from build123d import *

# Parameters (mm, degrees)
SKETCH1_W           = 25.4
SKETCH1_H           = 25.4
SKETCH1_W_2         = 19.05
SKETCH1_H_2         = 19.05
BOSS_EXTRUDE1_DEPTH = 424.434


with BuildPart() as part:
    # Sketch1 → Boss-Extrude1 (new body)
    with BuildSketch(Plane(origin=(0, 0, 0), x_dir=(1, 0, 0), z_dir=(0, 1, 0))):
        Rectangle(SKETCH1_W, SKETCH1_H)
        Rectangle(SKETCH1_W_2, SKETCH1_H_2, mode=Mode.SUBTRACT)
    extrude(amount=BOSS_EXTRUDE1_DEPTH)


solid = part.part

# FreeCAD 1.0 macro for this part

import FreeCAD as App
import Part
import Sketcher
Q = App.Units.Quantity


def add_polygon(sketch, points):
    """Adds a closed chain of lines whose ends are joined by coincident constraints."""
    first, n = sketch.GeometryCount, len(points)
    for a, b in zip(points, points[1:] + points[:1]):
        sketch.addGeometry(Part.LineSegment(App.Vector(*a, 0), App.Vector(*b, 0)), False)
    for i in range(n):
        sketch.addConstraint(Sketcher.Constraint("Coincident", first + i, 2, first + (i + 1) % n, 1))

doc = App.newDocument("Part")
params = doc.addObject("Spreadsheet::Sheet", "Params")
for row, (alias, value) in enumerate([
    ("sketch1_width", "1 in"),
    ("sketch1_width2", "0.75 in"),
    ("pad1_length", "16.71 in"),
], start=1):
    params.set(f"A{row}", alias)
    params.set(f"B{row}", "=" + value)
    params.setAlias(f"B{row}", alias)

body = doc.addObject("PartDesign::Body", "Body")

# Sketch on XZ plane
sketch1 = body.newObject("Sketcher::SketchObject", "Sketch")
sketch1.AttachmentSupport = (doc.getObject("XZ_Plane"), [""])
sketch1.MapMode = "FlatFace"
add_polygon(sketch1, [(-13, -13), (-13, 13), (13, 13), (13, -13)])  # lines 0-3
add_polygon(sketch1, [(10, 10), (-10, 10), (-10, -10), (10, -10)])  # lines 4-7
sketch1.addConstraint([
    Sketcher.Constraint("Vertical", 0),
    Sketcher.Constraint("Horizontal", 1),
    Sketcher.Constraint("Vertical", 2),
    Sketcher.Constraint("Horizontal", 3),
    Sketcher.Constraint("Horizontal", 4),
    Sketcher.Constraint("Vertical", 5),
    Sketcher.Constraint("Horizontal", 6),
    Sketcher.Constraint("Vertical", 7),
    Sketcher.Constraint("Symmetric", 0, 2, 2, 2, -1, 1),
    Sketcher.Constraint("Symmetric", 4, 2, 6, 2, -1, 1),
    Sketcher.Constraint("Equal", 3, 0),
    Sketcher.Constraint("Equal", 6, 5),
    Sketcher.Constraint("DistanceX", 1, 1, 1, 2, Q("1 in")),
    Sketcher.Constraint("DistanceX", 4, 2, 4, 1, Q("0.75 in")),
])
sketch1.setExpression("Constraints[20]", "Params.sketch1_width")
sketch1.setExpression("Constraints[21]", "Params.sketch1_width2")
pad1 = body.newObject("PartDesign::Pad", "Pad")
pad1.Profile = sketch1
pad1.setExpression("Length", "Params.pad1_length")
pad1.Reversed = True

doc.recompute()
